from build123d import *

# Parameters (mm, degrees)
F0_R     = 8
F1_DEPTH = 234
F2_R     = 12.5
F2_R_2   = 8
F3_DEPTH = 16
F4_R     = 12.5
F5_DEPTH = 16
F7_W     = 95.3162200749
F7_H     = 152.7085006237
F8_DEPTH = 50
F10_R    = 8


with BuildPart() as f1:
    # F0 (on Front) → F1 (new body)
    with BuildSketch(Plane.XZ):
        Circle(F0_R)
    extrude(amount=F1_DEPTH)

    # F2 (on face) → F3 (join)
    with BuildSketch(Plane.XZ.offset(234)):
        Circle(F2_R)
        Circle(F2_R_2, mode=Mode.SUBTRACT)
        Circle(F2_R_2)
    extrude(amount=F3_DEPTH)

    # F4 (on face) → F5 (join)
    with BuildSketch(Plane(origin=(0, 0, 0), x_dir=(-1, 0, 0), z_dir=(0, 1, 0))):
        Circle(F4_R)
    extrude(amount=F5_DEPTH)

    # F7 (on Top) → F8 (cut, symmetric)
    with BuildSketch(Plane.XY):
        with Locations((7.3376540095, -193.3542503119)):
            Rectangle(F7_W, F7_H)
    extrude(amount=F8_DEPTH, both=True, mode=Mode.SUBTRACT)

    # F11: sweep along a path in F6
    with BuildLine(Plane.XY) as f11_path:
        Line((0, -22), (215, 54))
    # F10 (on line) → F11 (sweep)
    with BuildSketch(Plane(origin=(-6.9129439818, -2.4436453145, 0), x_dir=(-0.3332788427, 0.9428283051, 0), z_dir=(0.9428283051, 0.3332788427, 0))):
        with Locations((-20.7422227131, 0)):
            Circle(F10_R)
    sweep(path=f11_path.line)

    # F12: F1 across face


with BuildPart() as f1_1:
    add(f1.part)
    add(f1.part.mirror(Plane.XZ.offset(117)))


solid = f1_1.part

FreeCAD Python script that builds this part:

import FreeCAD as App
import Part
import Sketcher
from FreeCAD import Vector

doc = App.newDocument("Part")
params = doc.addObject("Spreadsheet::Sheet", "Params")
for row, (alias, value) in enumerate([
    ("sketch1_diameter", "16 mm"),
    ("pad1_length", "234 mm"),
    ("sketch2_diameter", "25 mm"),
    ("pad2_length", "16 mm"),
    ("sketch3_diameter", "25 mm"),
    ("pad3_length", "16 mm"),
    ("pocket1_length", "100 mm"),
    ("sketch5_diameter", "16 mm"),
], start=1):
    params.set(f"A{row}", alias)
    params.set(f"B{row}", "=" + value)
    params.setAlias(f"B{row}", alias)

body = doc.addObject("PartDesign::Body", "Body")

sketch1 = body.newObject("Sketcher::SketchObject", "Sketch")
sketch1.AttachmentSupport = (doc.getObject("XZ_Plane"), [""])
sketch1.MapMode = "FlatFace"
sketch1.addGeometry(Part.Circle(Vector(0, 0, 0), Vector(0, 0, 1), 8), False)
sketch1.addConstraint([
    Sketcher.Constraint("Coincident", 0, 3, -1, 1),
    Sketcher.Constraint("Diameter", 0, 16.0),
])
sketch1.setExpression("Constraints[1]", "Params.sketch1_diameter")
pad1 = body.newObject("PartDesign::Pad", "Pad")
pad1.Profile = sketch1
pad1.setExpression("Length", "Params.pad1_length")

sketch2 = body.newObject("Sketcher::SketchObject", "Sketch001")
sketch2.AttachmentSupport = (doc.getObject("XZ_Plane"), [""])
sketch2.MapMode = "FlatFace"
sketch2.AttachmentOffset = App.Placement(Vector(0, 0, 234), App.Rotation())
sketch2.addGeometry(Part.Circle(Vector(0, 0, 0), Vector(0, 0, 1), 12), False)
sketch2.addConstraint([
    Sketcher.Constraint("Coincident", 0, 3, -1, 1),
    Sketcher.Constraint("Diameter", 0, 25.0),
])
sketch2.setExpression("Constraints[1]", "Params.sketch2_diameter")
pad2 = body.newObject("PartDesign::Pad", "Pad001")
pad2.Profile = sketch2
pad2.setExpression("Length", "Params.pad2_length")

sketch3 = body.newObject("Sketcher::SketchObject", "Sketch002")
sketch3.AttachmentSupport = (doc.getObject("XZ_Plane"), [""])
sketch3.MapMode = "FlatFace"
sketch3.addGeometry(Part.Circle(Vector(0, 0, 0), Vector(0, 0, 1), 12), False)
sketch3.addConstraint([
    Sketcher.Constraint("Coincident", 0, 3, -1, 1),
    Sketcher.Constraint("Diameter", 0, 25.0),
])
sketch3.setExpression("Constraints[1]", "Params.sketch3_diameter")
pad3 = body.newObject("PartDesign::Pad", "Pad002")
pad3.Profile = sketch3
pad3.setExpression("Length", "Params.pad3_length")
pad3.Reversed = True

sketch4 = body.newObject("Sketcher::SketchObject", "Sketch003")
sketch4.AttachmentSupport = (doc.getObject("XY_Plane"), [""])
sketch4.MapMode = "FlatFace"
sketch4.addGeometry([
    Part.LineSegment(Vector(-40, -117, 0), Vector(-40, -270, 0)),
    Part.LineSegment(Vector(-40, -270, 0), Vector(55, -270, 0)),
    Part.LineSegment(Vector(55, -270, 0), Vector(55, -117, 0)),
    Part.LineSegment(Vector(55, -117, 0), Vector(-40, -117, 0)),
], False)
sketch4.addConstraint([
    Sketcher.Constraint("Coincident", 0, 2, 1, 1),
    Sketcher.Constraint("Coincident", 1, 2, 2, 1),
    Sketcher.Constraint("Coincident", 2, 2, 3, 1),
    Sketcher.Constraint("Coincident", 3, 2, 0, 1),
    Sketcher.Constraint("Vertical", 0),
    Sketcher.Constraint("Horizontal", 1),
    Sketcher.Constraint("Vertical", 2),
    Sketcher.Constraint("Horizontal", 3),
    Sketcher.Constraint("DistanceY", 2, 2, -1, 1, 117.0),
    Sketcher.Constraint("DistanceY", 0, 2, 0, 1, 152.708501),
    Sketcher.Constraint("DistanceX", 1, 1, 1, 2, 95.31622),
    Sketcher.Constraint("DistanceX", 0, 2, -1, 1, 40.320456),
])
pocket1 = body.newObject("PartDesign::Pocket", "Pocket")
pocket1.Profile = sketch4
pocket1.setExpression("Length", "Params.pocket1_length")
pocket1.Midplane = True

sketch5 = body.newObject("Sketcher::SketchObject", "Sketch004")
sketch5.Placement = App.Placement(Vector(-6.912944, -2.443645, 0), App.Rotation(Vector(-0.333278843, 0.942828305, 0), Vector(0, 0, 1), Vector(0.942828305, 0.333278843, 0), "ZXY"))
sketch5.addGeometry(Part.Circle(Vector(-21, 0, 0), Vector(0, 0, 1), 8), False)
sketch5.addConstraint([
    Sketcher.Constraint("PointOnObject", 0, 3, -1),
    Sketcher.Constraint("Diameter", 0, 16.0),
    Sketcher.Constraint("DistanceX", 0, 3, -1, 1, 20.742223),
])
sketch5.setExpression("Constraints[1]", "Params.sketch5_diameter")

sketch6 = body.newObject("Sketcher::SketchObject", "Sketch005")
sketch6.Placement = App.Placement(Vector(6.912944, -19.556355, 0), App.Rotation(Vector(0.942828305, 0.333278843, 0), Vector(0, 0, 1), Vector(0.333278843, -0.942828305, 0), "ZXY"))
sketch6.addGeometry(Part.LineSegment(Vector(-7, 0, 0), Vector(221, 0, 0)), False)
sketch6.addConstraint([
    Sketcher.Constraint("Horizontal", 0),
    Sketcher.Constraint("PointOnObject", 0, 1, -1),
    Sketcher.Constraint("DistanceX", 0, 1, 0, 2, 228.037278),
    Sketcher.Constraint("DistanceX", 0, 1, -1, 1, 7.332135),
])
doc.recompute()

additivepipe = body.newObject("PartDesign::AdditivePipe", "AdditivePipe")
additivepipe.Profile = sketch5
additivepipe.Spine = (sketch6, ["Edge1"])
body2 = doc.addObject("PartDesign::Body", "Body001")
doc.recompute()

body2.BaseFeature = body
doc.recompute()

mirroring = doc.addObject("Part::Mirroring", "Mirroring")
mirroring.Source = body
mirroring.Base = Vector(0, -117, 0)
mirroring.Normal = Vector(0, -1, 0)
body3 = doc.addObject("PartDesign::Body", "Body002")
body3.BaseFeature = mirroring
boolean = body2.newObject("PartDesign::Boolean", "Boolean")
boolean.Type = "Fuse"
boolean.addObjects([body3])
doc.recompute()
mirroring.Visibility = False

doc.recompute()
